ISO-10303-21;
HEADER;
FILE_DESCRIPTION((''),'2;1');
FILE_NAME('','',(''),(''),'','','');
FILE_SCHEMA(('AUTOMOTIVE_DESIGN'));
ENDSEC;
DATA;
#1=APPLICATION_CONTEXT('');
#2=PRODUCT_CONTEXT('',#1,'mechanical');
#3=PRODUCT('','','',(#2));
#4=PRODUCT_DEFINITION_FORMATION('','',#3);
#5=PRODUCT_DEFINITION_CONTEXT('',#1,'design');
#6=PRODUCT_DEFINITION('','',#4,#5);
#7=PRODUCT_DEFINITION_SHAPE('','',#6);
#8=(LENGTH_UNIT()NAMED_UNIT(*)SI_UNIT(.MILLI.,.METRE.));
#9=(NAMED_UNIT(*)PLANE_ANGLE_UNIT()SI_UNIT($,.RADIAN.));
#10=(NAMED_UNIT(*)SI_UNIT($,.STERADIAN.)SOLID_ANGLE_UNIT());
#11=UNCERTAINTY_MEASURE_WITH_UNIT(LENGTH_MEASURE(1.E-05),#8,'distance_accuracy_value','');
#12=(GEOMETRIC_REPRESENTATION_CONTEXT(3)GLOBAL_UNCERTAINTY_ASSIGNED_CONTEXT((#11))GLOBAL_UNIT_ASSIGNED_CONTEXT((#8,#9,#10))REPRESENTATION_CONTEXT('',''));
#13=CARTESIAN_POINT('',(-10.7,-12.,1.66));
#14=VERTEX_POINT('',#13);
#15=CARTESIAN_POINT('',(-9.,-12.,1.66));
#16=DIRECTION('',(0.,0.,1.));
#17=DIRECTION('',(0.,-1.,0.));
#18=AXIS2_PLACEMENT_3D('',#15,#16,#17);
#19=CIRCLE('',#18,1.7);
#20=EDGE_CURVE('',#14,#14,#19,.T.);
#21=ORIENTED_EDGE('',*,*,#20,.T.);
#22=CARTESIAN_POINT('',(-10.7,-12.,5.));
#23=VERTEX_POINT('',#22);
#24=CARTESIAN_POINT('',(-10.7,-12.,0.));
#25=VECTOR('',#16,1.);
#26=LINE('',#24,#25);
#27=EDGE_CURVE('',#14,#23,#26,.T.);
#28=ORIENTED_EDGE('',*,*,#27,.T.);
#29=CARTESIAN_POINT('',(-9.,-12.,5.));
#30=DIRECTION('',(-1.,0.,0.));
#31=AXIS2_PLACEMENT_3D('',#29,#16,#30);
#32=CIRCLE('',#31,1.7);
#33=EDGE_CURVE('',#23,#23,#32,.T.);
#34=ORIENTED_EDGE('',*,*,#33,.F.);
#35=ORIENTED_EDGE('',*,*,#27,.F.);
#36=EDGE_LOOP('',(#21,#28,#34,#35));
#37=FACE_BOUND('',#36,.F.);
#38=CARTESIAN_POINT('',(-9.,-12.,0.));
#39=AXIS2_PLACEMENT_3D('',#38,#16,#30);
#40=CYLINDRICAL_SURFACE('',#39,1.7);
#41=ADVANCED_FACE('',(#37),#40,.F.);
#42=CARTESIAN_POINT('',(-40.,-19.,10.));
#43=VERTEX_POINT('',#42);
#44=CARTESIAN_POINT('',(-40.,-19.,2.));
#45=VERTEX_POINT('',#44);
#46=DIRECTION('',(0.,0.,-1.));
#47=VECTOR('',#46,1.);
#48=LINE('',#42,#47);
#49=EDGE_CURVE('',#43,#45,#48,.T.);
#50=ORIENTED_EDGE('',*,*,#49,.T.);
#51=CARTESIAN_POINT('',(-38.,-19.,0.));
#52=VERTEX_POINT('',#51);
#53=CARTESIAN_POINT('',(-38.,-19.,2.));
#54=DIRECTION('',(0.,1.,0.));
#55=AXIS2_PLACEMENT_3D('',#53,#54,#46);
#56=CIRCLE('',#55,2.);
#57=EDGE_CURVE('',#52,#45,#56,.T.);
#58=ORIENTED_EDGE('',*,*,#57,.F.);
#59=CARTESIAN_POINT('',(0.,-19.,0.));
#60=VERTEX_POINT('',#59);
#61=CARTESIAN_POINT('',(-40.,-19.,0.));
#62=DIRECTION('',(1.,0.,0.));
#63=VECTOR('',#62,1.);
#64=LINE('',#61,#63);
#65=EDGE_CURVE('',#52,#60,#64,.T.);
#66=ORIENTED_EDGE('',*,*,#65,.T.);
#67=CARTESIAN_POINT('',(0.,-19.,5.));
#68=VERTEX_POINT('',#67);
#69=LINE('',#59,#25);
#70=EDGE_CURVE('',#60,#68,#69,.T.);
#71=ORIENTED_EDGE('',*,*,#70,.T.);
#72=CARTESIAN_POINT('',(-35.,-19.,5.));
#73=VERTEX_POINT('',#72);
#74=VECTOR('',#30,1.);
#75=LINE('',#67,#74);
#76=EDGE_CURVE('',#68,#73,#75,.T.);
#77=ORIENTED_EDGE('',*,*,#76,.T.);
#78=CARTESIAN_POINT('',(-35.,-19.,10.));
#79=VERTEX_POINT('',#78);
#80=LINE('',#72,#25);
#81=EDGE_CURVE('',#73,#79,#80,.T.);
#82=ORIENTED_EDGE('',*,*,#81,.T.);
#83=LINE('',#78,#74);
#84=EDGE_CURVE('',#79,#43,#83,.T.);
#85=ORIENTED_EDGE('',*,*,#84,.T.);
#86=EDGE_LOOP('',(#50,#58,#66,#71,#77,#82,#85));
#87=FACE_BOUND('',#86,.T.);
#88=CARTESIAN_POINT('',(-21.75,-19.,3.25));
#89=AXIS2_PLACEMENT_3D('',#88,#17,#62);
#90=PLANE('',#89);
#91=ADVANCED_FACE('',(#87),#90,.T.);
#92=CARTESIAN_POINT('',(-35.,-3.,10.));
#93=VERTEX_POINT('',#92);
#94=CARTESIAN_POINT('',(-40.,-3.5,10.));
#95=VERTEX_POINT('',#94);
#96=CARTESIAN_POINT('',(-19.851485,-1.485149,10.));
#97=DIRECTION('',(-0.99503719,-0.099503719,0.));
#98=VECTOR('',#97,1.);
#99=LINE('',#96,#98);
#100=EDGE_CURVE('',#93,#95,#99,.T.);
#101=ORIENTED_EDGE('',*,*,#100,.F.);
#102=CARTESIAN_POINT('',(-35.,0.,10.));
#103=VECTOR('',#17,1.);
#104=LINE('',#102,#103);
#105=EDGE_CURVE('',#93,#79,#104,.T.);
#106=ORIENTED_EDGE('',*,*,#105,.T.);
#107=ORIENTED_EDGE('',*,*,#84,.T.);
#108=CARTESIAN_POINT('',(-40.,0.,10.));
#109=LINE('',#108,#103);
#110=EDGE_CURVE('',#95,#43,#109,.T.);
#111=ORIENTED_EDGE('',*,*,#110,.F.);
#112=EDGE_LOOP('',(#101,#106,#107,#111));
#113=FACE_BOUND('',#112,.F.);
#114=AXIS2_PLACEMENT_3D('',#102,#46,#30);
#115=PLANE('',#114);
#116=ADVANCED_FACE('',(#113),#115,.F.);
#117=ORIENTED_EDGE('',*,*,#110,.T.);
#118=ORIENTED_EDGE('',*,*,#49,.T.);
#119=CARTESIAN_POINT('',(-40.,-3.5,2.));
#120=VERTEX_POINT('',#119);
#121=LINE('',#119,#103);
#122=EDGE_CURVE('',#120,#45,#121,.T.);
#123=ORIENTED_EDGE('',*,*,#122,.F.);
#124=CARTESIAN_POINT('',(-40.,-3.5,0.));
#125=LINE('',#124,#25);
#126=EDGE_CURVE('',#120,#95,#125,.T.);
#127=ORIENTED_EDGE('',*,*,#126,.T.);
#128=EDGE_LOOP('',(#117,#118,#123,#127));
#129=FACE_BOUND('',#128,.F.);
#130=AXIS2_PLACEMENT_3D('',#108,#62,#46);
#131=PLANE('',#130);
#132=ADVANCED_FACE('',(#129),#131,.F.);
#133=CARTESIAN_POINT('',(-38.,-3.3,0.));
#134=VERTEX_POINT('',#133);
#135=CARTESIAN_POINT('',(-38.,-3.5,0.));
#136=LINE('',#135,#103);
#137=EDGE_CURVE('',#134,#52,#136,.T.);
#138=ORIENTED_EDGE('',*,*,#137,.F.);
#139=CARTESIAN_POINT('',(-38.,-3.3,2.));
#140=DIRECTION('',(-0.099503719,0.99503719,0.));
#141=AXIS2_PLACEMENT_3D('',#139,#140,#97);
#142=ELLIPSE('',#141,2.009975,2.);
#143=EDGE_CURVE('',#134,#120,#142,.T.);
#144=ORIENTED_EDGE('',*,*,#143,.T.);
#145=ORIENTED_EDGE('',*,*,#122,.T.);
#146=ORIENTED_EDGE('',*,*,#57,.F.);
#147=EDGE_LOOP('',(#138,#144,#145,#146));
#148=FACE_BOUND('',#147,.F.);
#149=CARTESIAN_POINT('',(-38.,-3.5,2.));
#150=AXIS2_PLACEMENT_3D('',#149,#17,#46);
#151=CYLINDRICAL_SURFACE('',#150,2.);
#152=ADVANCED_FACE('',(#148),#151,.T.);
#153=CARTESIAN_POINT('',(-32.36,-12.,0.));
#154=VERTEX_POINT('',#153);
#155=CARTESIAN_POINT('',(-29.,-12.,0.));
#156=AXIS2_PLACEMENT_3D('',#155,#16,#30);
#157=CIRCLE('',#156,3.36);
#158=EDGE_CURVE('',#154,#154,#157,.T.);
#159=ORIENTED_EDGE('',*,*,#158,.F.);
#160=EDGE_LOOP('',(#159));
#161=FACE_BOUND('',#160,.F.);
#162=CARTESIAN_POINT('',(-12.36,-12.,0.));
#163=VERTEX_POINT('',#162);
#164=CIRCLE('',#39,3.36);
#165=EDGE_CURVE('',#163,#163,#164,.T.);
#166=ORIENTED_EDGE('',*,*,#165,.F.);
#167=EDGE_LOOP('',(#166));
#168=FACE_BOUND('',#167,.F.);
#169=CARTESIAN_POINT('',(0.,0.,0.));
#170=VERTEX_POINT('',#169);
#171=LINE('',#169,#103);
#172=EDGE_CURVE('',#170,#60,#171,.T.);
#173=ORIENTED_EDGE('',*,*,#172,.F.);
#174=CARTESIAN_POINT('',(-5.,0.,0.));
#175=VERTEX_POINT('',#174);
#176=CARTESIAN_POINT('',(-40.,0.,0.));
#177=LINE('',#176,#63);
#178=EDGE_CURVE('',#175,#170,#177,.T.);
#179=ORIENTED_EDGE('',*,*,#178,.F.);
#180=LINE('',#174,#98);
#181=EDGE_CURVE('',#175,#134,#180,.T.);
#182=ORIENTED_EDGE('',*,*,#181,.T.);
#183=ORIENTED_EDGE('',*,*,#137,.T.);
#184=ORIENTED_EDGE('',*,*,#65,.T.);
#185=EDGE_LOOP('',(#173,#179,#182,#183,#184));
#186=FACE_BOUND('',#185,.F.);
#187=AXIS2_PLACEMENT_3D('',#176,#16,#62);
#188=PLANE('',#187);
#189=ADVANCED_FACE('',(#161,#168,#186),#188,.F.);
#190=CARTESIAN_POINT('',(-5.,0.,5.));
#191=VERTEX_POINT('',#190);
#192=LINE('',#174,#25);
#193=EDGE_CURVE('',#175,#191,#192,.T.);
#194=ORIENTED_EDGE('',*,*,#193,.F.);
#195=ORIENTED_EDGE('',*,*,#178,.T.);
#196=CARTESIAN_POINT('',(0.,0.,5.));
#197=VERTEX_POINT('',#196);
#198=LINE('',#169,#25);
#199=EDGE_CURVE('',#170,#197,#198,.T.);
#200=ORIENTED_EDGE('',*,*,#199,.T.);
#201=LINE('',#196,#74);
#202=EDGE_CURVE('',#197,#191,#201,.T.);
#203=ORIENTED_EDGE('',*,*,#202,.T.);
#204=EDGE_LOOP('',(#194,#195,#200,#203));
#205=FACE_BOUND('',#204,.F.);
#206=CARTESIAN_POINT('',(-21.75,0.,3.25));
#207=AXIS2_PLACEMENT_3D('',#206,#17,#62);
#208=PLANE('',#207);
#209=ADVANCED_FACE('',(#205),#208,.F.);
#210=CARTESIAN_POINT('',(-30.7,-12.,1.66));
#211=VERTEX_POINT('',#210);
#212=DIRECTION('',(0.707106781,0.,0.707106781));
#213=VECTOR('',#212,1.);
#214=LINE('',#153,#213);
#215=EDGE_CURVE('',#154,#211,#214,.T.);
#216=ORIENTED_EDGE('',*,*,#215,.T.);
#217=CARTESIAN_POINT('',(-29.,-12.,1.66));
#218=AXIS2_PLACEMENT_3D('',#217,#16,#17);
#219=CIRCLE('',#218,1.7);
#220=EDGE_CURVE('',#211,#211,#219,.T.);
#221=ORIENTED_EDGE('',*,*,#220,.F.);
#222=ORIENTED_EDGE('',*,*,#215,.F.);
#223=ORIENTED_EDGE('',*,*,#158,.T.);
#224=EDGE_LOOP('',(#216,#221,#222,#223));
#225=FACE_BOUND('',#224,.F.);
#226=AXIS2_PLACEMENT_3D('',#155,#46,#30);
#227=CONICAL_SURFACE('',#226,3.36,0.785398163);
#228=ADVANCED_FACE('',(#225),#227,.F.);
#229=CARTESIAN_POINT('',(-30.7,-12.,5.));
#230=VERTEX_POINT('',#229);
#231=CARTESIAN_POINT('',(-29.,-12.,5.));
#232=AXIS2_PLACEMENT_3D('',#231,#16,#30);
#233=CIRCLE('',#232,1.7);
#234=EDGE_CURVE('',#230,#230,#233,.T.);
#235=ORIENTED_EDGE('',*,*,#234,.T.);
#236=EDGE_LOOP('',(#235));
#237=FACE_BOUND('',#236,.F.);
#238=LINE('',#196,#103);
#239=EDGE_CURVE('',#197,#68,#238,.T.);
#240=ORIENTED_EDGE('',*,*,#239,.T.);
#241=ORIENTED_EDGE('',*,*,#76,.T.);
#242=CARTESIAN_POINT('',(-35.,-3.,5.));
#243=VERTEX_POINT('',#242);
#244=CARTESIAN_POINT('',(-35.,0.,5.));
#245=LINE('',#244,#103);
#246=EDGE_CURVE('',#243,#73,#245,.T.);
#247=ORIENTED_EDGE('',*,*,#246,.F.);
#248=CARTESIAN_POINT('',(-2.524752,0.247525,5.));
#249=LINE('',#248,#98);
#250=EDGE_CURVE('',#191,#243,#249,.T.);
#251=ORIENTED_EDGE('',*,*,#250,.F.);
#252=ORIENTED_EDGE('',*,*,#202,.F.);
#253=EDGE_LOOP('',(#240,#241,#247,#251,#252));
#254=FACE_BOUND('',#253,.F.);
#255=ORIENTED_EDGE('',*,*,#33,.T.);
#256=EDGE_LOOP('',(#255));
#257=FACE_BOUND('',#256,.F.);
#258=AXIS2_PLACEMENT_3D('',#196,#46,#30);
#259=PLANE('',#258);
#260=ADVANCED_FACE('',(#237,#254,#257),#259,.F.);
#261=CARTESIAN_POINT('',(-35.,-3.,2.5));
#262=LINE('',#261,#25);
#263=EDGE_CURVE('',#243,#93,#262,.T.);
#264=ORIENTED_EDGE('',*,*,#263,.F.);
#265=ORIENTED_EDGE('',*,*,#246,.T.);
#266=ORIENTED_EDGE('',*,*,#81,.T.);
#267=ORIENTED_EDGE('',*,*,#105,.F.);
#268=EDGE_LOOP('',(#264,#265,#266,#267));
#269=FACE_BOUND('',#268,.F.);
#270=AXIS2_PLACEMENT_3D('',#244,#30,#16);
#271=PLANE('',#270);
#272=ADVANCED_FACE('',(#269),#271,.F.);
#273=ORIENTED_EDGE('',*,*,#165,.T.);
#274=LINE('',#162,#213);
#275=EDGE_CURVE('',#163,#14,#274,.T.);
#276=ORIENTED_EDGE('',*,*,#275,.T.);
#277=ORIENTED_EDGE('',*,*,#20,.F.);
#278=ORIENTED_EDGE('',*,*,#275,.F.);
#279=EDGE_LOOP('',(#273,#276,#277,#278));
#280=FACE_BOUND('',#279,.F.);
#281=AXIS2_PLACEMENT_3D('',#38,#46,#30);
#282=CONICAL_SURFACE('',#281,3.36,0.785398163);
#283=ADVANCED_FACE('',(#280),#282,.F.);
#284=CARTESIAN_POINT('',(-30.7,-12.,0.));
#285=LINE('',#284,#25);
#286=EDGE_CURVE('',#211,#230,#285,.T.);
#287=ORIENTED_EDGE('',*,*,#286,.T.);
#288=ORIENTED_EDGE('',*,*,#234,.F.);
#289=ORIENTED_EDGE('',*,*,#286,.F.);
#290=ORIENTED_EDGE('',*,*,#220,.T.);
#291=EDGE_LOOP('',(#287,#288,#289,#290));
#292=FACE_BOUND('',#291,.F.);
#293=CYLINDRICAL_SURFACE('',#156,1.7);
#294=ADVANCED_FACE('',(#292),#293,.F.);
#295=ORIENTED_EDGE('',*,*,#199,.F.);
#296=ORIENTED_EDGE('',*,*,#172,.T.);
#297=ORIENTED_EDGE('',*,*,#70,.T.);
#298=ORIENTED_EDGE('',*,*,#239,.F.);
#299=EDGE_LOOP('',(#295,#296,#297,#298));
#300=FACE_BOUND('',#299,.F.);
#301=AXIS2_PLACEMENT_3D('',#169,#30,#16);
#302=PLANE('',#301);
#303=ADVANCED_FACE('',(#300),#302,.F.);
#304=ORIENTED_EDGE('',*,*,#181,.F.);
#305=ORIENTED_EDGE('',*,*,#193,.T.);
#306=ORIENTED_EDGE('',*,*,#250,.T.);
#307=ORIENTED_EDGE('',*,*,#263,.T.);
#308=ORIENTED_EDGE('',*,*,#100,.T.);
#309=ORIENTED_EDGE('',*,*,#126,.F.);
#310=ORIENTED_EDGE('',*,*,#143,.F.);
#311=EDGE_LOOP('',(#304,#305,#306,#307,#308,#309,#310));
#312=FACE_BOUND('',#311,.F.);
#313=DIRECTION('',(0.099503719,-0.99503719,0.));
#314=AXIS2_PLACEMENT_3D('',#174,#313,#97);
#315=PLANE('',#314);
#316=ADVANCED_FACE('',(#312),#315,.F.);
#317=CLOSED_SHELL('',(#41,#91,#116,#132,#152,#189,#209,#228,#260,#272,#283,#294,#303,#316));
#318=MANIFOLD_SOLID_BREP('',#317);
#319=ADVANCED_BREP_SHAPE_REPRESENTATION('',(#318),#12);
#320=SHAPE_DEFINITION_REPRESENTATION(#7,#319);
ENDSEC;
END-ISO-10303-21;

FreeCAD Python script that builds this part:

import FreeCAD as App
import Part
import Sketcher


def edges_at(feature, points):
    """Names of the edges that pass closest to the given points."""
    edges = feature.Shape.Edges
    near = lambda p: min(range(len(edges)), key=lambda i: edges[i].distToShape(Part.Vertex(*p))[0])
    return sorted({f"Edge{near(p) + 1}" for p in points})


def add_polygon(sketch, points):
    """Adds a closed chain of lines whose ends are joined by coincident constraints."""
    first, n = sketch.GeometryCount, len(points)
    for a, b in zip(points, points[1:] + points[:1]):
        sketch.addGeometry(Part.LineSegment(App.Vector(*a, 0), App.Vector(*b, 0)), False)
    for i in range(n):
        sketch.addConstraint(Sketcher.Constraint("Coincident", first + i, 2, first + (i + 1) % n, 1))

doc = App.newDocument("Part")
body = doc.addObject("PartDesign::Body", "Body")

sketch1 = body.newObject("Sketcher::SketchObject", "Sketch")
sketch1.AttachmentSupport = (doc.getObject("XZ_Plane"), [""])
sketch1.MapMode = "FlatFace"
add_polygon(sketch1, [(-40, 0), (0, 0), (0, 5), (-35, 5), (-35, 10), (-40, 10)])
sketch1.addConstraint(Sketcher.Constraint("Horizontal", 0))
sketch1.addConstraint(Sketcher.Constraint("Vertical", 1))
sketch1.addConstraint(Sketcher.Constraint("Horizontal", 2))
sketch1.addConstraint(Sketcher.Constraint("Vertical", 3))
sketch1.addConstraint(Sketcher.Constraint("Horizontal", 4))
sketch1.addConstraint(Sketcher.Constraint("Vertical", 5))
sketch1.addConstraint(Sketcher.Constraint("Coincident", 0, 2, -1, 1))
sketch1.addConstraint(Sketcher.Constraint("Equal", 4, 1))
sketch1.addConstraint(Sketcher.Constraint("Equal", 1, 3))
sketch1.addConstraint(Sketcher.Constraint("DistanceX", 0, 1, 0, 2, 40.0))
sketch1.addConstraint(Sketcher.Constraint("DistanceX", 2, 2, 2, 1, 35.0))
pad1 = body.newObject("PartDesign::Pad", "Pad")
pad1.Profile = sketch1
pad1.Length = 19

sketch2 = body.newObject("Sketcher::SketchObject", "Sketch001")
sketch2.AttachmentSupport = (doc.getObject("XY_Plane"), [""])
sketch2.MapMode = "FlatFace"
add_polygon(sketch2, [(-5, 0), (-40, -3.5), (-40, 0)])
sketch2.addConstraint(Sketcher.Constraint("Vertical", 1))
sketch2.addConstraint(Sketcher.Constraint("Horizontal", 2))
sketch2.addConstraint(Sketcher.Constraint("PointOnObject", 1, 2, -1))
sketch2.addConstraint(Sketcher.Constraint("DistanceX", 2, 1, 2, 2, 35.0))
sketch2.addConstraint(Sketcher.Constraint("DistanceY", 1, 1, 1, 2, 3.5))
sketch2.addConstraint(Sketcher.Constraint("DistanceX", 0, 2, -1, 1, 40.0))
pocket1 = body.newObject("PartDesign::Pocket", "Pocket")
pocket1.Profile = sketch2
pocket1.Length = 25
pocket1.Reversed = True

sketch3 = body.newObject("Sketcher::SketchObject", "Sketch002")
sketch3.AttachmentSupport = (doc.getObject("XY_Plane"), [""])
sketch3.MapMode = "FlatFace"
sketch3.addGeometry(Part.Circle(App.Vector(-9, -12, 0), App.Vector(0, 0, 1), 1.7), False)
sketch3.addGeometry(Part.Circle(App.Vector(-29, -12, 0), App.Vector(0, 0, 1), 1.7), False)
sketch3.addConstraint(Sketcher.Constraint("Equal", 0, 1))
sketch3.addConstraint(Sketcher.Constraint("Horizontal", 0, 3, 1, 3))
sketch3.addConstraint(Sketcher.Constraint("Diameter", 0, 3.4))
sketch3.addConstraint(Sketcher.Constraint("DistanceX", 0, 3, -1, 1, 9.0))
sketch3.addConstraint(Sketcher.Constraint("DistanceY", 0, 3, -1, 1, 12.0))
sketch3.addConstraint(Sketcher.Constraint("DistanceX", 1, 3, -1, 1, 29.0))
doc.recompute()
hole = body.newObject("PartDesign::Hole", "Hole")
hole.Profile = sketch3
hole.ThreadType = "None"
hole.Diameter = 3.4
hole.DepthType = "ThroughAll"
hole.HoleCutType = "Countersink"
hole.HoleCutDiameter = 6.72
hole.HoleCutCountersinkAngle = 90
hole.Reversed = True
doc.recompute()

fillet = body.newObject("PartDesign::Fillet", "Fillet")
fillet.Base = (hole, edges_at(hole, [(-40, -11.25, 0)]))
fillet.Radius = 2

doc.recompute()
